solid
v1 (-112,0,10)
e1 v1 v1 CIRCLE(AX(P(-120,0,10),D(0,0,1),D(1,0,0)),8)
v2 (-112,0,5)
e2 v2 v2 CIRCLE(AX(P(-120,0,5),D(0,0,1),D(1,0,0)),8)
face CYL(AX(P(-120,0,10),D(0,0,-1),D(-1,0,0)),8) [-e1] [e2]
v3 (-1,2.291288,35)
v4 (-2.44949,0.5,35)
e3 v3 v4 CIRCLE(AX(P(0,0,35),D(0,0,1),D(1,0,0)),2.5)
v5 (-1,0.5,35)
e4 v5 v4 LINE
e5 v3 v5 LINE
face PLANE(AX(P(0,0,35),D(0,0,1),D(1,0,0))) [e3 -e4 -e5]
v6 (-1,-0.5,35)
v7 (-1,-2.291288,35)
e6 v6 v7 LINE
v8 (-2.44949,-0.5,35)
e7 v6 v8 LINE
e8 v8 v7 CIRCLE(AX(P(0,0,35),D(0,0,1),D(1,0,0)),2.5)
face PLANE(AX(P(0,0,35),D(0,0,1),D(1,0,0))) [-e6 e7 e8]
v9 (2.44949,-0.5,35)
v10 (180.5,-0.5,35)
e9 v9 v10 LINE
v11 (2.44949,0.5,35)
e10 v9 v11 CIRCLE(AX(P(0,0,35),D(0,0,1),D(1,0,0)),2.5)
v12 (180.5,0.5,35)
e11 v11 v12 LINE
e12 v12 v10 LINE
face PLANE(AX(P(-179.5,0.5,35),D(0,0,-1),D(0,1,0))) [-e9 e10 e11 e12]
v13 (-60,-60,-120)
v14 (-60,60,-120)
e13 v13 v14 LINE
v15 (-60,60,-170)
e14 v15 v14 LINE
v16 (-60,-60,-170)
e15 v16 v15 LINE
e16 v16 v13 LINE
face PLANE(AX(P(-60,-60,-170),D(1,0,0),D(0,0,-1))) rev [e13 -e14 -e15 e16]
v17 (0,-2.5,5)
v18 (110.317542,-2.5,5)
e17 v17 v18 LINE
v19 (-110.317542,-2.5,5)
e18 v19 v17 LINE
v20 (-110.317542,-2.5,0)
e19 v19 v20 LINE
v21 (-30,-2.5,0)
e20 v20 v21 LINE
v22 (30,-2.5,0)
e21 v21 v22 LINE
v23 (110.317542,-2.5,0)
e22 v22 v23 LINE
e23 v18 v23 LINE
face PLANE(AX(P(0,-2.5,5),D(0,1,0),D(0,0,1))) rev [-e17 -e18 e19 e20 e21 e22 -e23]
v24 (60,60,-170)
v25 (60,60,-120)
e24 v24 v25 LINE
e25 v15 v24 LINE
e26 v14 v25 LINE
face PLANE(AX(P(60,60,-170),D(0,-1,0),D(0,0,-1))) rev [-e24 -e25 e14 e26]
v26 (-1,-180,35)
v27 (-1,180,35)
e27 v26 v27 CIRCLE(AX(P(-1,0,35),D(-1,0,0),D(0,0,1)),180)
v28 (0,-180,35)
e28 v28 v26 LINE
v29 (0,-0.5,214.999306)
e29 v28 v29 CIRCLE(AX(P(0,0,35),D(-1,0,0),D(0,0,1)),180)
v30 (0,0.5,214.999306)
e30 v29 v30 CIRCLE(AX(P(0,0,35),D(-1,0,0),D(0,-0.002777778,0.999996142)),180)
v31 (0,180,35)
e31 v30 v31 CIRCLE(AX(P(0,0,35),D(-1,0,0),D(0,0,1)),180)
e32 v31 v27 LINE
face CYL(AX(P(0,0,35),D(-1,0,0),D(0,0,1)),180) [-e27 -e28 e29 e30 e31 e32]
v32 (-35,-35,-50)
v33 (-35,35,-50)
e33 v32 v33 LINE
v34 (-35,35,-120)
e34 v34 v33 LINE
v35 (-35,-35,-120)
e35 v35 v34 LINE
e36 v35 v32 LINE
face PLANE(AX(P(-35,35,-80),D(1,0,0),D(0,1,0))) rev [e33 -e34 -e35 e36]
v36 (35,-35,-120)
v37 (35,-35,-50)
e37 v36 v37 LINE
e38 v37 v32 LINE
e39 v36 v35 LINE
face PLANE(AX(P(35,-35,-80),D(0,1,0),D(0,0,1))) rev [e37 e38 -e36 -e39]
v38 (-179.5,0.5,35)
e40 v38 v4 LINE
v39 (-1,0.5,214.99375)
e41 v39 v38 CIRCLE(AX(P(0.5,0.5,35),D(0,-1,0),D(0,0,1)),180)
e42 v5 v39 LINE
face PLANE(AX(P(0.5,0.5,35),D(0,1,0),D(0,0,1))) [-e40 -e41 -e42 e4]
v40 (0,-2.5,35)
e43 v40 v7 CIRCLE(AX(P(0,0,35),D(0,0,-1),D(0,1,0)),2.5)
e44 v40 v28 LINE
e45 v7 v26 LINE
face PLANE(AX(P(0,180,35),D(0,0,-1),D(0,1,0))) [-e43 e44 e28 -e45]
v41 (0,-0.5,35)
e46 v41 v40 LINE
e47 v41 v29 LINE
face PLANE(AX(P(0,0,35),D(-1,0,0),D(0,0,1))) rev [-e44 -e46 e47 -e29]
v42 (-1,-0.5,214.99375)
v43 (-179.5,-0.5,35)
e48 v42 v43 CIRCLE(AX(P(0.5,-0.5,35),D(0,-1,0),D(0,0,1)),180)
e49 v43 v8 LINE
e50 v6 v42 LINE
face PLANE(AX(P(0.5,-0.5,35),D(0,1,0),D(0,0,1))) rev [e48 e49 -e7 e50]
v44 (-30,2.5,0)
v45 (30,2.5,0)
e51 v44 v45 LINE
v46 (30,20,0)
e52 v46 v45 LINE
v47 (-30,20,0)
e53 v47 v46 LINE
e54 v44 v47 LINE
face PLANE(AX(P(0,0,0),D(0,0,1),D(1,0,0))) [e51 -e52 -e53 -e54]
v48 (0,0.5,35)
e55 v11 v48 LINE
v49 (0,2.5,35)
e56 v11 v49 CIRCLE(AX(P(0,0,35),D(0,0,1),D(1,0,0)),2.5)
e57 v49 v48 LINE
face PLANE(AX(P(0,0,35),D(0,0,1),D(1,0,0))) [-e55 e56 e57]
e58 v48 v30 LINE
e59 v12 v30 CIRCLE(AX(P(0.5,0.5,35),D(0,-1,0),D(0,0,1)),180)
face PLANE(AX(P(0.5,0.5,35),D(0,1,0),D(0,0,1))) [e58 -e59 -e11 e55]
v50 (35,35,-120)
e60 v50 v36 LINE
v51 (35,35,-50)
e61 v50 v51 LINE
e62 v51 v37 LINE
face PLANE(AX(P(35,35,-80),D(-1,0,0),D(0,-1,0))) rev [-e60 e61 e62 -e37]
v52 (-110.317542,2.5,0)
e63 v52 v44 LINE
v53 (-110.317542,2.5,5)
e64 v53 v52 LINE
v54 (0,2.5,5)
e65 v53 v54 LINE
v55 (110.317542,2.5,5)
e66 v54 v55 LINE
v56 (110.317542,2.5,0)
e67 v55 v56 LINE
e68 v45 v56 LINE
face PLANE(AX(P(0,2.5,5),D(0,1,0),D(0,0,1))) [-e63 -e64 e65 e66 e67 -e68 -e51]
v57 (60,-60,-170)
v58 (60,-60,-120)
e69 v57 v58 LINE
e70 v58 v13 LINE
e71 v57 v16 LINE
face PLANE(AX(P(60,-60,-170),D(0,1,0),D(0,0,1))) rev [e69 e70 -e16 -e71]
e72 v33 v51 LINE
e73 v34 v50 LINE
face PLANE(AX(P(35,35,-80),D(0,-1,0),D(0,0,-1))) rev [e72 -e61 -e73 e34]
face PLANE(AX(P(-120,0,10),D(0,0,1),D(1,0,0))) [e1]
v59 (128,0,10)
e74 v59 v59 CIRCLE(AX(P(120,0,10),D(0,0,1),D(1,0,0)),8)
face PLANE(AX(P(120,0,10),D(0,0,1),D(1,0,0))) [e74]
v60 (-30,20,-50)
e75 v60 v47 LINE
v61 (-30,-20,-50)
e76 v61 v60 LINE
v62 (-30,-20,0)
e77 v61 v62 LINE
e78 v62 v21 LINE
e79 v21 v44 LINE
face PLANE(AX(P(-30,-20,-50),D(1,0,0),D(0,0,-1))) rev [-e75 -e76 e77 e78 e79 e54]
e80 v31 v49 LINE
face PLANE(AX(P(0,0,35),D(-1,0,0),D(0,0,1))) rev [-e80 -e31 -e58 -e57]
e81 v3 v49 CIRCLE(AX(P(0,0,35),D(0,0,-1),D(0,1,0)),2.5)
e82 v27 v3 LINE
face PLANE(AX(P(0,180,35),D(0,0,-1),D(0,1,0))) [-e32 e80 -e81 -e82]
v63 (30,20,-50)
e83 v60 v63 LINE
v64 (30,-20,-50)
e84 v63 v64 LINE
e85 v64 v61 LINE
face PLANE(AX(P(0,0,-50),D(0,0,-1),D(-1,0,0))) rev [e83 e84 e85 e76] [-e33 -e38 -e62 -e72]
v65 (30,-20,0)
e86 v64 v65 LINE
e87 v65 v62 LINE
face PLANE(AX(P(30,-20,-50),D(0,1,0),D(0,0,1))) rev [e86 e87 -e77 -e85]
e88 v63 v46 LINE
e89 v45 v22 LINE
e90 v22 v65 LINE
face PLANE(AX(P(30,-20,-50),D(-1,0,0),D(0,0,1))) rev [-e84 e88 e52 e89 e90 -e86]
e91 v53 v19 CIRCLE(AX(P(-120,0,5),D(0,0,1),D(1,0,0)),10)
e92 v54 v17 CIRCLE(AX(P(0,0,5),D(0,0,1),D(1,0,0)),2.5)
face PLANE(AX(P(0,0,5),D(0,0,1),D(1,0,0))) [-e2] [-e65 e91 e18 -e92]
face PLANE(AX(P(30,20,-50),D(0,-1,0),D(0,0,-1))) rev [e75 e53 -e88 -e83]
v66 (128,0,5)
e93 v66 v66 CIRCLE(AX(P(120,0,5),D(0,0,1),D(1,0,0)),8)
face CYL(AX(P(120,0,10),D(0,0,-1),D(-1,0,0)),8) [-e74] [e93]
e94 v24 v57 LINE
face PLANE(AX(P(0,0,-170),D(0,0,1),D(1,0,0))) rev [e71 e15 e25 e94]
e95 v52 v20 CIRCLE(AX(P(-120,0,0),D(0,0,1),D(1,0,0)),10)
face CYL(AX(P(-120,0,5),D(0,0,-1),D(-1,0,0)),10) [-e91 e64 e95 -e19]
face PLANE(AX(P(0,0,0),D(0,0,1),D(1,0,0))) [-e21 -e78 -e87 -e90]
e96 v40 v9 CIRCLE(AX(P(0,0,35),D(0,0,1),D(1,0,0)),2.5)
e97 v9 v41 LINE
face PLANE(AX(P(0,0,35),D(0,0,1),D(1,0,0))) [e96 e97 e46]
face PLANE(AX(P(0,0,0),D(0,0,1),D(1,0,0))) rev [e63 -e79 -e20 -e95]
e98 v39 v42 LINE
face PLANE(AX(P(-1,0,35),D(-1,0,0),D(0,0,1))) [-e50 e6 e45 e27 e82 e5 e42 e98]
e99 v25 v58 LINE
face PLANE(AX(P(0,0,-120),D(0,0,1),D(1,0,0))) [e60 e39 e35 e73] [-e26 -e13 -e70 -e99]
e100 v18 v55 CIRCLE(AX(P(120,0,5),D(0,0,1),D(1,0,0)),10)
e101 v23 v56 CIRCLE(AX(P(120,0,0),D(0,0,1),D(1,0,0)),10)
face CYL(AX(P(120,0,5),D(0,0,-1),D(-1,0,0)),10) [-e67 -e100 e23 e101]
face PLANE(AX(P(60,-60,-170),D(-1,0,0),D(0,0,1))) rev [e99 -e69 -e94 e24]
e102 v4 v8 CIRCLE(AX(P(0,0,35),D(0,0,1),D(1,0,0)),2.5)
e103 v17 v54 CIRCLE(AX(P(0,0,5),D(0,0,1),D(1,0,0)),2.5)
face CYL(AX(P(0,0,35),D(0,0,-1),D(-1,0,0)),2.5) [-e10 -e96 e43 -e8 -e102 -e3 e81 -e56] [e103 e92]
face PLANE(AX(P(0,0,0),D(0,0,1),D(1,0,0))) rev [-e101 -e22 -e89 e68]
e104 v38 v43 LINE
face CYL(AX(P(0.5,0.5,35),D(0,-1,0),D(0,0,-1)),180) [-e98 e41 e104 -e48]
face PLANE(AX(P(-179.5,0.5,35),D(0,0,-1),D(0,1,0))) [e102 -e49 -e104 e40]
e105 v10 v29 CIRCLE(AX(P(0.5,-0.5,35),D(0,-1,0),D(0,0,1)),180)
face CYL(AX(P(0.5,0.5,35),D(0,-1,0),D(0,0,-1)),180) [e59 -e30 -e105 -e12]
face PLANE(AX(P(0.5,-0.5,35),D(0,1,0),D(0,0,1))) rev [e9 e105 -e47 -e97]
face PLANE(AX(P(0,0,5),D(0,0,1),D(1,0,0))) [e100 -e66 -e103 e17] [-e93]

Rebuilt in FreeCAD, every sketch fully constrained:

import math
import FreeCAD as App
import Part
import Sketcher
from FreeCAD import Vector
Q = App.Units.Quantity


def add_polygon(sketch, points):
    """Adds a closed chain of lines whose ends are joined by coincident constraints."""
    first, n = sketch.GeometryCount, len(points)
    for a, b in zip(points, points[1:] + points[:1]):
        sketch.addGeometry(Part.LineSegment(App.Vector(*a, 0), App.Vector(*b, 0)), False)
    for i in range(n):
        sketch.addConstraint(Sketcher.Constraint("Coincident", first + i, 2, first + (i + 1) % n, 1))

doc = App.newDocument("Part")
params = doc.addObject("Spreadsheet::Sheet", "Params")
for row, (alias, value) in enumerate([
    ("sketch1_radius", "10 mm"),
    ("pad1_length", "5 mm"),
    ("sketch2_diameter", "16 mm"),
    ("pad2_length", "5 mm"),
    ("sketch3_width", "60 mm"),
    ("sketch3_height", "40 mm"),
    ("pad3_length", "50 mm"),
    ("sketch4_width", "70 mm"),
    ("pad4_length", "30 mm"),
    ("sketch5_diameter", "5 mm"),
    ("pad5_length", "30 mm"),
    ("sketch6_radius", "180 mm"),
    ("pad6_length", "0.5 mm"),
    ("pad6_length2", "0.5 mm"),
    ("sketch7_radius", "180 mm"),
    ("pad7_length", "0.5 mm"),
    ("pad7_length2", "0.5 mm"),
    ("sketch8_width", "70 mm"),
    ("pad8_length", "40 mm"),
    ("sketch9_width", "120 mm"),
    ("pad9_length", "50 mm"),
], start=1):
    params.set(f"A{row}", alias)
    params.set(f"B{row}", "=" + value)
    params.setAlias(f"B{row}", alias)

body = doc.addObject("PartDesign::Body", "Body")

# Sketch on XY plane
sketch1 = body.newObject("Sketcher::SketchObject", "Sketch")
sketch1.AttachmentSupport = (doc.getObject("XY_Plane"), [""])
sketch1.MapMode = "FlatFace"
sketch1.addGeometry(Part.ArcOfCircle(Part.Circle(Vector(-120, 0, 0), Vector(0, 0, 1), 10), math.radians(14), math.radians(346)), False)
sketch1.addGeometry(Part.LineSegment(Vector(-110, -2, 0), Vector(110, -2, 0)), False)
sketch1.addGeometry(Part.ArcOfCircle(Part.Circle(Vector(120, 0, 0), Vector(0, 0, 1), 10), math.radians(-166), math.radians(166)), False)
sketch1.addGeometry(Part.LineSegment(Vector(110, 2, 0), Vector(-110, 2, 0)), False)
sketch1.addConstraint(Sketcher.Constraint("Coincident", 0, 2, 1, 1))
sketch1.addConstraint(Sketcher.Constraint("Coincident", 1, 2, 2, 1))
sketch1.addConstraint(Sketcher.Constraint("Coincident", 2, 2, 3, 1))
sketch1.addConstraint(Sketcher.Constraint("Coincident", 3, 2, 0, 1))
sketch1.addConstraint(Sketcher.Constraint("Horizontal", 1))
sketch1.addConstraint(Sketcher.Constraint("Horizontal", 3))
sketch1.addConstraint(Sketcher.Constraint("Equal", 0, 2))
sketch1.addConstraint(Sketcher.Constraint("Symmetric", 0, 3, 2, 3, -1, 1))
sketch1.addConstraint(Sketcher.Constraint("Symmetric", 1, 2, 2, 2, -1))
sketch1.addConstraint(Sketcher.Constraint("Radius", 0, Q("10 mm")))
sketch1.addConstraint(Sketcher.Constraint("DistanceX", 0, 3, -1, 1, Q("120 mm")))
sketch1.addConstraint(Sketcher.Constraint("DistanceY", 1, 2, 2, 2, Q("5 mm")))
sketch1.setExpression("Constraints[9]", "Params.sketch1_radius")
pad1 = body.newObject("PartDesign::Pad", "Pad")
pad1.Profile = sketch1
pad1.setExpression("Length", "Params.pad1_length")

# Sketch on XY plane
sketch2 = body.newObject("Sketcher::SketchObject", "Sketch001")
sketch2.AttachmentSupport = (doc.getObject("XY_Plane"), [""])
sketch2.MapMode = "FlatFace"
sketch2.AttachmentOffset = App.Placement(Vector(0, 0, 5), App.Rotation())
sketch2.addGeometry(Part.Circle(Vector(-120, 0, 0), Vector(0, 0, 1), 8), False)
sketch2.addGeometry(Part.Circle(Vector(120, 0, 0), Vector(0, 0, 1), 8), False)
sketch2.addConstraint(Sketcher.Constraint("Equal", 0, 1))
sketch2.addConstraint(Sketcher.Constraint("Symmetric", 0, 3, 1, 3, -1, 1))
sketch2.addConstraint(Sketcher.Constraint("PointOnObject", 0, 3, -1))
sketch2.addConstraint(Sketcher.Constraint("Diameter", 0, Q("16 mm")))
sketch2.addConstraint(Sketcher.Constraint("DistanceX", 0, 3, -1, 1, Q("120 mm")))
sketch2.setExpression("Constraints[3]", "Params.sketch2_diameter")
pad2 = body.newObject("PartDesign::Pad", "Pad001")
pad2.Profile = sketch2
pad2.setExpression("Length", "Params.pad2_length")

# Sketch on XY plane
sketch3 = body.newObject("Sketcher::SketchObject", "Sketch002")
sketch3.AttachmentSupport = (doc.getObject("XY_Plane"), [""])
sketch3.MapMode = "FlatFace"
add_polygon(sketch3, [(30, 20), (30, -20), (-30, -20), (-30, 20)])  # lines 0-3
sketch3.addConstraint(Sketcher.Constraint("Vertical", 0))
sketch3.addConstraint(Sketcher.Constraint("Horizontal", 1))
sketch3.addConstraint(Sketcher.Constraint("Vertical", 2))
sketch3.addConstraint(Sketcher.Constraint("Horizontal", 3))
sketch3.addConstraint(Sketcher.Constraint("Symmetric", 0, 2, 2, 2, -1, 1))
sketch3.addConstraint(Sketcher.Constraint("DistanceX", 1, 2, 1, 1, Q("60 mm")))
sketch3.addConstraint(Sketcher.Constraint("DistanceY", 0, 2, 0, 1, Q("40 mm")))
sketch3.setExpression("Constraints[9]", "Params.sketch3_width")
sketch3.setExpression("Constraints[10]", "Params.sketch3_height")
pad3 = body.newObject("PartDesign::Pad", "Pad002")
pad3.Profile = sketch3
pad3.setExpression("Length", "Params.pad3_length")
pad3.Reversed = True

# Sketch on XY plane
sketch4 = body.newObject("Sketcher::SketchObject", "Sketch003")
sketch4.AttachmentSupport = (doc.getObject("XY_Plane"), [""])
sketch4.MapMode = "FlatFace"
sketch4.AttachmentOffset = App.Placement(Vector(0, 0, -50), App.Rotation())
add_polygon(sketch4, [(35, 35), (35, -35), (-35, -35), (-35, 35)])  # lines 0-3
sketch4.addConstraint(Sketcher.Constraint("Vertical", 0))
sketch4.addConstraint(Sketcher.Constraint("Horizontal", 1))
sketch4.addConstraint(Sketcher.Constraint("Vertical", 2))
sketch4.addConstraint(Sketcher.Constraint("Horizontal", 3))
sketch4.addConstraint(Sketcher.Constraint("Symmetric", 0, 2, 2, 2, -1, 1))
sketch4.addConstraint(Sketcher.Constraint("Equal", 3, 0))
sketch4.addConstraint(Sketcher.Constraint("DistanceX", 1, 2, 1, 1, Q("70 mm")))
sketch4.setExpression("Constraints[10]", "Params.sketch4_width")
pad4 = body.newObject("PartDesign::Pad", "Pad003")
pad4.Profile = sketch4
pad4.setExpression("Length", "Params.pad4_length")
pad4.Reversed = True

# Sketch on XY plane
sketch5 = body.newObject("Sketcher::SketchObject", "Sketch004")
sketch5.AttachmentSupport = (doc.getObject("XY_Plane"), [""])
sketch5.MapMode = "FlatFace"
sketch5.AttachmentOffset = App.Placement(Vector(0, 0, 5), App.Rotation())
sketch5.addGeometry(Part.Circle(Vector(0, 0, 0), Vector(0, 0, 1), 2.5), False)
sketch5.addConstraint(Sketcher.Constraint("Coincident", 0, 3, -1, 1))
sketch5.addConstraint(Sketcher.Constraint("Diameter", 0, Q("5 mm")))
sketch5.setExpression("Constraints[1]", "Params.sketch5_diameter")
pad5 = body.newObject("PartDesign::Pad", "Pad004")
pad5.Profile = sketch5
pad5.setExpression("Length", "Params.pad5_length")

# Sketch on XZ plane
sketch6 = body.newObject("Sketcher::SketchObject", "Sketch005")
sketch6.AttachmentSupport = (doc.getObject("XZ_Plane"), [""])
sketch6.MapMode = "FlatFace"
sketch6.addGeometry(Part.LineSegment(Vector(-180, 35, 0), Vector(180, 35, 0)), False)
sketch6.addGeometry(Part.ArcOfCircle(Part.Circle(Vector(0, 35, 0), Vector(0, 0, 1), 180), math.radians(0), math.radians(180)), False)
sketch6.addConstraint(Sketcher.Constraint("Coincident", 0, 1, 1, 2))
sketch6.addConstraint(Sketcher.Constraint("Coincident", 1, 1, 0, 2))
sketch6.addConstraint(Sketcher.Constraint("Horizontal", 0))
sketch6.addConstraint(Sketcher.Constraint("Horizontal", 1, 3, 0, 1))
sketch6.addConstraint(Sketcher.Constraint("Radius", 1, Q("180 mm")))
sketch6.addConstraint(Sketcher.Constraint("DistanceY", -1, 1, 1, 3, Q("35 mm")))
sketch6.addConstraint(Sketcher.Constraint("DistanceX", -1, 1, 1, 3, Q("0.5 mm")))
sketch6.setExpression("Constraints[4]", "Params.sketch6_radius")
pad6 = body.newObject("PartDesign::Pad", "Pad005")
pad6.Profile = sketch6
pad6.Type = "TwoLengths"
pad6.setExpression("Length", "Params.pad6_length")
pad6.setExpression("Length2", "Params.pad6_length2")

# Sketch on YZ plane
sketch7 = body.newObject("Sketcher::SketchObject", "Sketch006")
sketch7.AttachmentSupport = (doc.getObject("YZ_Plane"), [""])
sketch7.MapMode = "FlatFace"
sketch7.AttachmentOffset = App.Placement(Vector(0, 0, -0.5), App.Rotation())
sketch7.addGeometry(Part.LineSegment(Vector(180, 35, 0), Vector(-180, 35, 0)), False)
sketch7.addGeometry(Part.ArcOfCircle(Part.Circle(Vector(0, 35, 0), Vector(0, 0, 1), 180), math.radians(0), math.radians(180)), False)
sketch7.addConstraint(Sketcher.Constraint("Coincident", 0, 1, 1, 1))
sketch7.addConstraint(Sketcher.Constraint("Coincident", 1, 2, 0, 2))
sketch7.addConstraint(Sketcher.Constraint("Horizontal", 0))
sketch7.addConstraint(Sketcher.Constraint("PointOnObject", 1, 3, -2))
sketch7.addConstraint(Sketcher.Constraint("Horizontal", 1, 3, 0, 1))
sketch7.addConstraint(Sketcher.Constraint("Radius", 1, Q("180 mm")))
sketch7.addConstraint(Sketcher.Constraint("DistanceY", -1, 1, 1, 3, Q("35 mm")))
sketch7.setExpression("Constraints[5]", "Params.sketch7_radius")
pad7 = body.newObject("PartDesign::Pad", "Pad006")
pad7.Profile = sketch7
pad7.Type = "TwoLengths"
pad7.setExpression("Length", "Params.pad7_length")
pad7.setExpression("Length2", "Params.pad7_length2")
pad7.Reversed = True

# Sketch on XY plane
sketch8 = body.newObject("Sketcher::SketchObject", "Sketch007")
sketch8.AttachmentSupport = (doc.getObject("XY_Plane"), [""])
sketch8.MapMode = "FlatFace"
sketch8.AttachmentOffset = App.Placement(Vector(0, 0, -80), App.Rotation())
add_polygon(sketch8, [(35, 35), (35, -35), (-35, -35), (-35, 35)])  # lines 0-3
sketch8.addConstraint(Sketcher.Constraint("Vertical", 0))
sketch8.addConstraint(Sketcher.Constraint("Horizontal", 1))
sketch8.addConstraint(Sketcher.Constraint("Vertical", 2))
sketch8.addConstraint(Sketcher.Constraint("Horizontal", 3))
sketch8.addConstraint(Sketcher.Constraint("Symmetric", 0, 2, 2, 2, -1, 1))
sketch8.addConstraint(Sketcher.Constraint("Equal", 3, 0))
sketch8.addConstraint(Sketcher.Constraint("DistanceX", 1, 2, 1, 1, Q("70 mm")))
sketch8.setExpression("Constraints[10]", "Params.sketch8_width")
pad8 = body.newObject("PartDesign::Pad", "Pad007")
pad8.Profile = sketch8
pad8.setExpression("Length", "Params.pad8_length")
pad8.Reversed = True

# Sketch on XY plane
sketch9 = body.newObject("Sketcher::SketchObject", "Sketch008")
sketch9.AttachmentSupport = (doc.getObject("XY_Plane"), [""])
sketch9.MapMode = "FlatFace"
sketch9.AttachmentOffset = App.Placement(Vector(0, 0, -120), App.Rotation())
add_polygon(sketch9, [(60, 60), (60, -60), (-60, -60), (-60, 60)])  # lines 0-3
sketch9.addConstraint(Sketcher.Constraint("Vertical", 0))
sketch9.addConstraint(Sketcher.Constraint("Horizontal", 1))
sketch9.addConstraint(Sketcher.Constraint("Vertical", 2))
sketch9.addConstraint(Sketcher.Constraint("Horizontal", 3))
sketch9.addConstraint(Sketcher.Constraint("Symmetric", 0, 2, 2, 2, -1, 1))
sketch9.addConstraint(Sketcher.Constraint("Equal", 3, 0))
sketch9.addConstraint(Sketcher.Constraint("DistanceX", 1, 2, 1, 1, Q("120 mm")))
sketch9.setExpression("Constraints[10]", "Params.sketch9_width")
pad9 = body.newObject("PartDesign::Pad", "Pad008")
pad9.Profile = sketch9
pad9.setExpression("Length", "Params.pad9_length")
pad9.Reversed = True

doc.recompute()
